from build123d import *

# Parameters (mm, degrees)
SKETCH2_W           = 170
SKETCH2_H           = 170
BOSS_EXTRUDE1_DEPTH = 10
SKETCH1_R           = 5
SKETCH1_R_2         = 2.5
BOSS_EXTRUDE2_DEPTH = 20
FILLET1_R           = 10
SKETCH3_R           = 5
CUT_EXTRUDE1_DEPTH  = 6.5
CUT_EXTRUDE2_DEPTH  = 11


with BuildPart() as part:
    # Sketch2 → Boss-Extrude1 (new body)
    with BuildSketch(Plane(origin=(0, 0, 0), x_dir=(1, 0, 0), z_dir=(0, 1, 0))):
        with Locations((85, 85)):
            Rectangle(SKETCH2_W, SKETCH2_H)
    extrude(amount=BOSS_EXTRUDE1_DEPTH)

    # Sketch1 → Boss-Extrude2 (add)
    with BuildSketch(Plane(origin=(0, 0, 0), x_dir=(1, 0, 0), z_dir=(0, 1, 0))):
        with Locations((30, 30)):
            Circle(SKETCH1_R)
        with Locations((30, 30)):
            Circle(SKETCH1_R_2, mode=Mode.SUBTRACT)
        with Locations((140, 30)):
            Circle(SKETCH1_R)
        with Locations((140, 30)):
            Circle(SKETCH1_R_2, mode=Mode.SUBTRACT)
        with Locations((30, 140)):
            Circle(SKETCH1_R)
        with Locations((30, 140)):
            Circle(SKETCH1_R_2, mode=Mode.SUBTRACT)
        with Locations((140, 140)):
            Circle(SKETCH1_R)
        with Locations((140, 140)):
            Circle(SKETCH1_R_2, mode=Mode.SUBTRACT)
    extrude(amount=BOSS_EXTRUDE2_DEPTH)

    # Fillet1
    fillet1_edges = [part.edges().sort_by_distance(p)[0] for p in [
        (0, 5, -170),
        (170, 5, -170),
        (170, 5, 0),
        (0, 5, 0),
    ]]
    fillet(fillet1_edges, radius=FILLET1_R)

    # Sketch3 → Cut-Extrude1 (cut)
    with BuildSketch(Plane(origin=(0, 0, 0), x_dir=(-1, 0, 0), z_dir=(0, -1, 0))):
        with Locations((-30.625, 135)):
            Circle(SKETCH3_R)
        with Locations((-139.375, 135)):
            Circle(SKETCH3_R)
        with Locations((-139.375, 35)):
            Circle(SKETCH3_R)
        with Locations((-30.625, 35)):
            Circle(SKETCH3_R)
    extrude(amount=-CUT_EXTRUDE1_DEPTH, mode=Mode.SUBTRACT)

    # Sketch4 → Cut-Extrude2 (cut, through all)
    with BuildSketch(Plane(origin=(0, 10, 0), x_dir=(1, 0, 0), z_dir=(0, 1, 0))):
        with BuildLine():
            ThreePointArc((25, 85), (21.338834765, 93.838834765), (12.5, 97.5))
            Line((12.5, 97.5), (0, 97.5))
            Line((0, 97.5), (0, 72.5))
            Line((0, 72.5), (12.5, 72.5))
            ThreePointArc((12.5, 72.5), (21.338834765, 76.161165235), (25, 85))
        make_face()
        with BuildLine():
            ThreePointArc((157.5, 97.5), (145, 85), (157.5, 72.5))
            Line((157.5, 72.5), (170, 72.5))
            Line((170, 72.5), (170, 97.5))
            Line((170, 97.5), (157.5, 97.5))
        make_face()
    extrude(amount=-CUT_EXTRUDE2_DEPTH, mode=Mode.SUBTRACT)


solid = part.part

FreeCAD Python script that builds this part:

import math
import FreeCAD as App
import Part
import Sketcher
from FreeCAD import Vector


def edges_at(feature, points):
    """Names of the edges that pass closest to the given points."""
    edges = feature.Shape.Edges
    near = lambda p: min(range(len(edges)), key=lambda i: edges[i].distToShape(Part.Vertex(*p))[0])
    return sorted({f"Edge{near(p) + 1}" for p in points})


def add_polygon(sketch, points):
    """Adds a closed chain of lines whose ends are joined by coincident constraints."""
    first, n = sketch.GeometryCount, len(points)
    for a, b in zip(points, points[1:] + points[:1]):
        sketch.addGeometry(Part.LineSegment(App.Vector(*a, 0), App.Vector(*b, 0)), False)
    for i in range(n):
        sketch.addConstraint(Sketcher.Constraint("Coincident", first + i, 2, first + (i + 1) % n, 1))

doc = App.newDocument("Part")
params = doc.addObject("Spreadsheet::Sheet", "Params")
for row, (alias, value) in enumerate([
    ("sketch1_width", "170 mm"),
    ("pad1_length", "10 mm"),
    ("sketch2_diameter", "10 mm"),
    ("sketch2_diameter2", "5 mm"),
    ("pad2_length", "20 mm"),
    ("fillet_radius", "10 mm"),
    ("sketch3_diameter", "10 mm"),
    ("pocket1_length", "6.5 mm"),
    ("sketch4_radius", "12.5 mm"),
    ("sketch4_width", "12.5 mm"),
], start=1):
    params.set(f"A{row}", alias)
    params.set(f"B{row}", "=" + value)
    params.setAlias(f"B{row}", alias)

body = doc.addObject("PartDesign::Body", "Body")

# Sketch on XZ plane
sketch1 = body.newObject("Sketcher::SketchObject", "Sketch")
sketch1.AttachmentSupport = (doc.getObject("XZ_Plane"), [""])
sketch1.MapMode = "FlatFace"
add_polygon(sketch1, [(0, -170), (0, 0), (170, 0), (170, -170)])  # lines 0-3
sketch1.addConstraint([
    Sketcher.Constraint("Vertical", 0),
    Sketcher.Constraint("Horizontal", 1),
    Sketcher.Constraint("Vertical", 2),
    Sketcher.Constraint("Horizontal", 3),
    Sketcher.Constraint("Coincident", 0, 2, -1, 1),
    Sketcher.Constraint("Equal", 3, 0),
    Sketcher.Constraint("DistanceX", 1, 1, 1, 2, 170.0),
])
sketch1.setExpression("Constraints[10]", "Params.sketch1_width")
pad1 = body.newObject("PartDesign::Pad", "Pad")
pad1.Profile = sketch1
pad1.setExpression("Length", "Params.pad1_length")
pad1.Reversed = True

# Sketch on XZ plane
sketch2 = body.newObject("Sketcher::SketchObject", "Sketch001")
sketch2.AttachmentSupport = (doc.getObject("XZ_Plane"), [""])
sketch2.MapMode = "FlatFace"
sketch2.addGeometry([
    Part.Circle(Vector(30, -30, 0), Vector(0, 0, 1), 5),  # 0
    Part.Circle(Vector(30, -30, 0), Vector(0, 0, 1), 2.5),  # 1
    Part.Circle(Vector(140, -30, 0), Vector(0, 0, 1), 5),  # 2
    Part.Circle(Vector(140, -30, 0), Vector(0, 0, 1), 2.5),  # 3
    Part.Circle(Vector(30, -140, 0), Vector(0, 0, 1), 5),  # 4
    Part.Circle(Vector(30, -140, 0), Vector(0, 0, 1), 2.5),  # 5
    Part.Circle(Vector(140, -140, 0), Vector(0, 0, 1), 5),  # 6
    Part.Circle(Vector(140, -140, 0), Vector(0, 0, 1), 2.5),  # 7
], False)
sketch2.addConstraint([
    Sketcher.Constraint("Coincident", 1, 3, 0, 3),
    Sketcher.Constraint("Coincident", 3, 3, 2, 3),
    Sketcher.Constraint("Coincident", 5, 3, 4, 3),
    Sketcher.Constraint("Coincident", 7, 3, 6, 3),
    Sketcher.Constraint("Equal", 0, 2),
    Sketcher.Constraint("Equal", 1, 3),
    Sketcher.Constraint("Equal", 2, 4),
    Sketcher.Constraint("Equal", 3, 5),
    Sketcher.Constraint("Equal", 4, 6),
    Sketcher.Constraint("Equal", 5, 7),
    Sketcher.Constraint("Horizontal", 1, 3, 2, 3),
    Sketcher.Constraint("Horizontal", 5, 3, 6, 3),
    Sketcher.Constraint("Vertical", 1, 3, 4, 3),
    Sketcher.Constraint("Vertical", 3, 3, 6, 3),
    Sketcher.Constraint("Diameter", 0, 10.0),
    Sketcher.Constraint("Diameter", 1, 5.0),
    Sketcher.Constraint("DistanceX", -1, 1, 0, 3, 30.0),
    Sketcher.Constraint("DistanceY", 0, 3, -1, 1, 30.0),
    Sketcher.Constraint("DistanceX", -1, 1, 2, 3, 140.0),
    Sketcher.Constraint("DistanceY", 4, 3, -1, 1, 140.0),
])
sketch2.setExpression("Constraints[14]", "Params.sketch2_diameter")
sketch2.setExpression("Constraints[15]", "Params.sketch2_diameter2")
pad2 = body.newObject("PartDesign::Pad", "Pad001")
pad2.Profile = sketch2
pad2.setExpression("Length", "Params.pad2_length")
pad2.Reversed = True
doc.recompute()

fillet = body.newObject("PartDesign::Fillet", "Fillet")
fillet.Base = (pad2, edges_at(pad2, [
    (0, 5, -170),
    (170, 5, -170),
    (170, 5, 0),
    (0, 5, 0),
]))
fillet.setExpression("Radius", "Params.fillet_radius")

# Sketch on XZ plane
sketch3 = body.newObject("Sketcher::SketchObject", "Sketch002")
sketch3.AttachmentSupport = (doc.getObject("XZ_Plane"), [""])
sketch3.MapMode = "FlatFace"
sketch3.addGeometry([
    Part.Circle(Vector(31, -135, 0), Vector(0, 0, 1), 5),
    Part.Circle(Vector(139, -135, 0), Vector(0, 0, 1), 5),
    Part.Circle(Vector(139, -35, 0), Vector(0, 0, 1), 5),
    Part.Circle(Vector(31, -35, 0), Vector(0, 0, 1), 5),
], False)
sketch3.addConstraint([
    Sketcher.Constraint("Equal", 0, 1),
    Sketcher.Constraint("Equal", 1, 2),
    Sketcher.Constraint("Equal", 2, 3),
    Sketcher.Constraint("Horizontal", 0, 3, 1, 3),
    Sketcher.Constraint("Horizontal", 2, 3, 3, 3),
    Sketcher.Constraint("Vertical", 1, 3, 2, 3),
    Sketcher.Constraint("Vertical", 0, 3, 3, 3),
    Sketcher.Constraint("Diameter", 0, 10.0),
    Sketcher.Constraint("DistanceY", 0, 3, -1, 1, 135.0),
    Sketcher.Constraint("DistanceY", 2, 3, -1, 1, 35.0),
    Sketcher.Constraint("DistanceX", 0, 3, 1, 3, 108.75),
    Sketcher.Constraint("DistanceX", -1, 1, 0, 3, 30.625),
])
sketch3.setExpression("Constraints[7]", "Params.sketch3_diameter")
pocket1 = body.newObject("PartDesign::Pocket", "Pocket")
pocket1.Profile = sketch3
pocket1.setExpression("Length", "Params.pocket1_length")

# Sketch on XZ plane
sketch4 = body.newObject("Sketcher::SketchObject", "Sketch003")
sketch4.AttachmentSupport = (doc.getObject("XZ_Plane"), [""])
sketch4.MapMode = "FlatFace"
sketch4.AttachmentOffset = App.Placement(Vector(0, 0, -10), App.Rotation())
sketch4.addGeometry([
    Part.ArcOfCircle(Part.Circle(Vector(13, -85, 0), Vector(0, 0, 1), 12), math.radians(-90), math.radians(0)),  # 0
    Part.LineSegment(Vector(12, -98, 0), Vector(0, -98, 0)),  # 1
    Part.LineSegment(Vector(0, -98, 0), Vector(0, -72, 0)),  # 2
    Part.LineSegment(Vector(0, -72, 0), Vector(12, -72, 0)),  # 3
    Part.ArcOfCircle(Part.Circle(Vector(13, -85, 0), Vector(0, 0, 1), 12), math.radians(0), math.radians(90)),  # 4
    Part.ArcOfCircle(Part.Circle(Vector(158, -85, 0), Vector(0, 0, 1), 12), math.radians(90), math.radians(270)),  # 5
    Part.LineSegment(Vector(158, -72, 0), Vector(170, -72, 0)),  # 6
    Part.LineSegment(Vector(170, -72, 0), Vector(170, -98, 0)),  # 7
    Part.LineSegment(Vector(170, -98, 0), Vector(158, -98, 0)),  # 8
], False)
sketch4.addConstraint([
    Sketcher.Constraint("Tangent", 0, 1, 1, 1),
    Sketcher.Constraint("Coincident", 1, 2, 2, 1),
    Sketcher.Constraint("Coincident", 2, 2, 3, 1),
    Sketcher.Constraint("Tangent", 3, 2, 4, 2),
    Sketcher.Constraint("Tangent", 4, 1, 0, 2),
    Sketcher.Constraint("Tangent", 5, 1, 6, 1),
    Sketcher.Constraint("Coincident", 6, 2, 7, 1),
    Sketcher.Constraint("Coincident", 7, 2, 8, 1),
    Sketcher.Constraint("Tangent", 8, 2, 5, 2),
    Sketcher.Constraint("Horizontal", 1),
    Sketcher.Constraint("Vertical", 2),
    Sketcher.Constraint("Horizontal", 3),
    Sketcher.Constraint("Horizontal", 6),
    Sketcher.Constraint("Vertical", 7),
    Sketcher.Constraint("Horizontal", 8),
    Sketcher.Constraint("Equal", 0, 4),
    Sketcher.Constraint("Equal", 4, 5),
    Sketcher.Constraint("PointOnObject", 1, 2, -2),
    Sketcher.Constraint("Horizontal", 4, 3, 5, 3),
    Sketcher.Constraint("Horizontal", 5, 3, 4, 1),
    Sketcher.Constraint("Equal", 3, 6),
    Sketcher.Constraint("Radius", 0, 12.5),
    Sketcher.Constraint("DistanceX", 1, 2, 1, 1, 12.5),
    Sketcher.Constraint("DistanceY", 0, 3, -1, 1, 85.0),
    Sketcher.Constraint("DistanceX", -1, 1, 6, 2, 170.0),
])
sketch4.setExpression("Constraints[21]", "Params.sketch4_radius")
sketch4.setExpression("Constraints[22]", "Params.sketch4_width")
pocket2 = body.newObject("PartDesign::Pocket", "Pocket001")
pocket2.Profile = sketch4
pocket2.Type = "ThroughAll"
pocket2.Reversed = True

doc.recompute()
